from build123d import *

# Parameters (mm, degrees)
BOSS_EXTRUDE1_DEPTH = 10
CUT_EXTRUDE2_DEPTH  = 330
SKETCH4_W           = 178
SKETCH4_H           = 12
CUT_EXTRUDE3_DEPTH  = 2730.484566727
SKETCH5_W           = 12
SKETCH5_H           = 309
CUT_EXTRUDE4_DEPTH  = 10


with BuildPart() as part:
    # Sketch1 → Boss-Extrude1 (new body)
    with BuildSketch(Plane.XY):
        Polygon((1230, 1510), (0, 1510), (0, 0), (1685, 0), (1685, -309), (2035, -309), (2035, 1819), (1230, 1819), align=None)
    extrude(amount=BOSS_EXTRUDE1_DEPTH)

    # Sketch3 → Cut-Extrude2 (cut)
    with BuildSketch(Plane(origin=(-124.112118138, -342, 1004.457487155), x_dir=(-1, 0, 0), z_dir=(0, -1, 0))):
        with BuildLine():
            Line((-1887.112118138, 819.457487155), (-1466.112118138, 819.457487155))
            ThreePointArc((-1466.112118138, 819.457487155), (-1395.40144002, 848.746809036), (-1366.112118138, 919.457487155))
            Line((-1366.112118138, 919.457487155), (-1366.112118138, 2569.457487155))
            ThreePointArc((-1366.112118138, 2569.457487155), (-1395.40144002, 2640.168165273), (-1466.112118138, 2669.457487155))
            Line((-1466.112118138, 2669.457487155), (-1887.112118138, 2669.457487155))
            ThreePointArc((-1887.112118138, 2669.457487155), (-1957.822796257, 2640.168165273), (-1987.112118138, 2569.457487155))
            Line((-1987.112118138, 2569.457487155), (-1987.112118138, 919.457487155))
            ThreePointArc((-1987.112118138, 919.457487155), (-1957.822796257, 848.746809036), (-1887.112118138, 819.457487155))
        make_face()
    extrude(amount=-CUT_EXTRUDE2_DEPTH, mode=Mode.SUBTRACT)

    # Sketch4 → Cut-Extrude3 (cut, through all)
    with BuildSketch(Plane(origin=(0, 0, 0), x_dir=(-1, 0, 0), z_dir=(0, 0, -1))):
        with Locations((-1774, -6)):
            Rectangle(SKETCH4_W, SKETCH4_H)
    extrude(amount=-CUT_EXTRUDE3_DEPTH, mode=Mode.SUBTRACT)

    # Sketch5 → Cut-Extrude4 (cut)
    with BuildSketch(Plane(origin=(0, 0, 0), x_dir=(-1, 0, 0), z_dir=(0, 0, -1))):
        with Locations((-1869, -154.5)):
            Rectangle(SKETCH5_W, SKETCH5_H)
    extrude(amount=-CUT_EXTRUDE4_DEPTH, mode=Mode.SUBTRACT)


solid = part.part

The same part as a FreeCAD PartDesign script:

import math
import FreeCAD as App
import Part
import Sketcher
Q = App.Units.Quantity


def add_polygon(sketch, points):
    """Adds a closed chain of lines whose ends are joined by coincident constraints."""
    first, n = sketch.GeometryCount, len(points)
    for a, b in zip(points, points[1:] + points[:1]):
        sketch.addGeometry(Part.LineSegment(App.Vector(*a, 0), App.Vector(*b, 0)), False)
    for i in range(n):
        sketch.addConstraint(Sketcher.Constraint("Coincident", first + i, 2, first + (i + 1) % n, 1))

doc = App.newDocument("Part")
body = doc.addObject("PartDesign::Body", "Body")

# Sketch on XY plane
sketch1 = body.newObject("Sketcher::SketchObject", "Sketch")
sketch1.AttachmentSupport = (doc.getObject("XY_Plane"), [""])
sketch1.MapMode = "FlatFace"
add_polygon(sketch1, [(1230, 1510), (0, 1510), (0, 0), (1685, 0), (1685, -309), (2035, -309), (2035, 1819), (1230, 1819)])  # lines 0-7
sketch1.addConstraint([
    Sketcher.Constraint("Horizontal", 0),
    Sketcher.Constraint("Vertical", 1),
    Sketcher.Constraint("Horizontal", 2),
    Sketcher.Constraint("Vertical", 3),
    Sketcher.Constraint("Horizontal", 4),
    Sketcher.Constraint("Vertical", 5),
    Sketcher.Constraint("Horizontal", 6),
    Sketcher.Constraint("Vertical", 7),
    Sketcher.Constraint("Coincident", 1, 2, -1, 1),
    Sketcher.Constraint("Equal", 3, 7),
    Sketcher.Constraint("DistanceX", 0, 2, 0, 1, Q("1230 mm")),
    Sketcher.Constraint("DistanceX", 2, 1, 2, 2, Q("1685 mm")),
    Sketcher.Constraint("DistanceX", 4, 1, 4, 2, Q("350 mm")),
    Sketcher.Constraint("DistanceY", 1, 2, 1, 1, Q("1510 mm")),
    Sketcher.Constraint("DistanceY", 3, 2, 3, 1, Q("309 mm")),
])
pad1 = body.newObject("PartDesign::Pad", "Pad")
pad1.Profile = sketch1
pad1.Length = 10

# Sketch on XZ plane
sketch2 = body.newObject("Sketcher::SketchObject", "Sketch001")
sketch2.AttachmentSupport = (doc.getObject("XZ_Plane"), [""])
sketch2.MapMode = "FlatFace"
sketch2.AttachmentOffset = App.Placement(App.Vector(0, 0, 342), App.Rotation())
sketch2.addGeometry([
    Part.LineSegment(App.Vector(1763, 185, 0), App.Vector(1342, 185, 0)),  # 0
    Part.ArcOfCircle(Part.Circle(App.Vector(1342, 85, 0), App.Vector(0, 0, 1), 100), math.radians(90), math.radians(180)),  # 1
    Part.LineSegment(App.Vector(1242, 85, 0), App.Vector(1242, -1565, 0)),  # 2
    Part.ArcOfCircle(Part.Circle(App.Vector(1342, -1565, 0), App.Vector(0, 0, 1), 100), math.radians(-180), math.radians(-90)),  # 3
    Part.LineSegment(App.Vector(1342, -1665, 0), App.Vector(1763, -1665, 0)),  # 4
    Part.ArcOfCircle(Part.Circle(App.Vector(1763, -1565, 0), App.Vector(0, 0, 1), 100), math.radians(-90), math.radians(0)),  # 5
    Part.LineSegment(App.Vector(1863, -1565, 0), App.Vector(1863, 85, 0)),  # 6
    Part.ArcOfCircle(Part.Circle(App.Vector(1763, 85, 0), App.Vector(0, 0, 1), 100), math.radians(0), math.radians(90)),  # 7
], False)
sketch2.addConstraint([
    Sketcher.Constraint("Tangent", 0, 2, 1, 1),
    Sketcher.Constraint("Tangent", 1, 2, 2, 1),
    Sketcher.Constraint("Tangent", 2, 2, 3, 1),
    Sketcher.Constraint("Tangent", 3, 2, 4, 1),
    Sketcher.Constraint("Tangent", 4, 2, 5, 1),
    Sketcher.Constraint("Tangent", 5, 2, 6, 1),
    Sketcher.Constraint("Tangent", 6, 2, 7, 1),
    Sketcher.Constraint("Tangent", 7, 2, 0, 1),
    Sketcher.Constraint("Horizontal", 0),
    Sketcher.Constraint("Vertical", 2),
    Sketcher.Constraint("Horizontal", 4),
    Sketcher.Constraint("Vertical", 6),
    Sketcher.Constraint("Equal", 1, 3),
    Sketcher.Constraint("Equal", 3, 5),
    Sketcher.Constraint("Equal", 5, 7),
    Sketcher.Constraint("Radius", 1, Q("100 mm")),
    Sketcher.Constraint("DistanceX", 0, 2, 0, 1, Q("421 mm")),
    Sketcher.Constraint("DistanceY", 2, 2, 2, 1, Q("1650 mm")),
    Sketcher.Constraint("DistanceX", -1, 1, 1, 3, Q("1342 mm")),
    Sketcher.Constraint("DistanceY", -1, 1, 1, 3, Q("85 mm")),
])
pocket1 = body.newObject("PartDesign::Pocket", "Pocket")
pocket1.Profile = sketch2
pocket1.Length = 330

# Sketch on XY plane
sketch3 = body.newObject("Sketcher::SketchObject", "Sketch002")
sketch3.AttachmentSupport = (doc.getObject("XY_Plane"), [""])
sketch3.MapMode = "FlatFace"
add_polygon(sketch3, [(1863, 0), (1863, -12), (1685, -12), (1685, 0)])  # lines 0-3
sketch3.addConstraint([
    Sketcher.Constraint("Vertical", 0),
    Sketcher.Constraint("Horizontal", 1),
    Sketcher.Constraint("Vertical", 2),
    Sketcher.Constraint("Horizontal", 3),
    Sketcher.Constraint("PointOnObject", 2, 2, -1),
    Sketcher.Constraint("DistanceX", 1, 2, 1, 1, Q("178 mm")),
    Sketcher.Constraint("DistanceY", 0, 2, 0, 1, Q("12 mm")),
    Sketcher.Constraint("DistanceX", -1, 1, 0, 2, Q("1863 mm")),
])
pocket2 = body.newObject("PartDesign::Pocket", "Pocket001")
pocket2.Profile = sketch3
pocket2.Type = "ThroughAll"
pocket2.Reversed = True

# Sketch on XY plane
sketch4 = body.newObject("Sketcher::SketchObject", "Sketch003")
sketch4.AttachmentSupport = (doc.getObject("XY_Plane"), [""])
sketch4.MapMode = "FlatFace"
add_polygon(sketch4, [(1875, 0), (1875, -309), (1863, -309), (1863, 0)])  # lines 0-3
sketch4.addConstraint([
    Sketcher.Constraint("Vertical", 0),
    Sketcher.Constraint("Horizontal", 1),
    Sketcher.Constraint("Vertical", 2),
    Sketcher.Constraint("Horizontal", 3),
    Sketcher.Constraint("PointOnObject", 2, 2, -1),
    Sketcher.Constraint("DistanceX", 1, 2, 1, 1, Q("12 mm")),
    Sketcher.Constraint("DistanceY", 0, 2, 0, 1, Q("309 mm")),
    Sketcher.Constraint("DistanceX", -1, 1, 0, 2, Q("1875 mm")),
])
pocket3 = body.newObject("PartDesign::Pocket", "Pocket002")
pocket3.Profile = sketch4
pocket3.Length = 10
pocket3.Reversed = True

doc.recompute()
